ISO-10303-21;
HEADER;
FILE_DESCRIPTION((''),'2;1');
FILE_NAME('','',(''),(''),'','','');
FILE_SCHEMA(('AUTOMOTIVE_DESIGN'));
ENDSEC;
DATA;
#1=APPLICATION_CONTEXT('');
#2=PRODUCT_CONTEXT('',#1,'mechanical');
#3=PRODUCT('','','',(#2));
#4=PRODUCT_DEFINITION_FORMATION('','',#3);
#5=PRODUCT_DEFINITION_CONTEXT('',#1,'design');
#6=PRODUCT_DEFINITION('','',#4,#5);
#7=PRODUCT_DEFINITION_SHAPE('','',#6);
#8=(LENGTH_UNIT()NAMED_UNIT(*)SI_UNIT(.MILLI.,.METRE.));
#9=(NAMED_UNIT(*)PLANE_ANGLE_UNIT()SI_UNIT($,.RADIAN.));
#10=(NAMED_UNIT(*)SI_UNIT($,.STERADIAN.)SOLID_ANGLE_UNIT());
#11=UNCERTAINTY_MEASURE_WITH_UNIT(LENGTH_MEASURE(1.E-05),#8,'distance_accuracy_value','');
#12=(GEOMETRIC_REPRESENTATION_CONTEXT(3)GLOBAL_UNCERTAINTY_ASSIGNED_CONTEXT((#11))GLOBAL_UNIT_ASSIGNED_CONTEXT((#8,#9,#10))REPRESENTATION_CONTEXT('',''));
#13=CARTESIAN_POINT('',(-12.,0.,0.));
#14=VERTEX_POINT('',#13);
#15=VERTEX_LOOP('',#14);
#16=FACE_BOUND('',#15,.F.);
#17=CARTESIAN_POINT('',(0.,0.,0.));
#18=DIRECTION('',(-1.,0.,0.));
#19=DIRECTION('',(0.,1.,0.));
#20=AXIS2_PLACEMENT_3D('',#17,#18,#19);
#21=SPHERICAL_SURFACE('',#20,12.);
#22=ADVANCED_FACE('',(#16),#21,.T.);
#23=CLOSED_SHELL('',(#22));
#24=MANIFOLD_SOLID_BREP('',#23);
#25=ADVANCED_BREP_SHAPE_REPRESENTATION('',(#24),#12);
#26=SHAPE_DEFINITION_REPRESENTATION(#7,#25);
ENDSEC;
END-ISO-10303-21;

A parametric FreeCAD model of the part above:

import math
import FreeCAD as App
import Part
import Sketcher
from FreeCAD import Vector
Q = App.Units.Quantity

doc = App.newDocument("Part")
body = doc.addObject("PartDesign::Body", "Body")

# Sketch on XY plane
sketch1 = doc.addObject("Sketcher::SketchObject", "Sketch")
body.addObject(sketch1)
sketch1.AttachmentSupport = (doc.XY_Plane, [""])
sketch1.MapMode = "FlatFace"
sketch1.addGeometry([
    Part.LineSegment(Vector(-12, 0, 0), Vector(12, 0, 0)),
    Part.ArcOfCircle(Part.Circle(Vector(0, 0, 0), Vector(0, 0, 1), 12), math.radians(0), math.radians(180)),
], False)
sketch1.addConstraint([
    Sketcher.Constraint("Coincident", 0, 1, 1, 2),
    Sketcher.Constraint("Coincident", 1, 1, 0, 2),
    Sketcher.Constraint("Horizontal", 0),
    Sketcher.Constraint("Coincident", 1, 3, -1, 1),
    Sketcher.Constraint("PointOnObject", 0, 1, -1),
    Sketcher.Constraint("Radius", 1, Q("12 mm")),
])
revolution = doc.addObject("PartDesign::Revolution", "Revolution")
body.addObject(revolution)
revolution.Profile = sketch1
revolution.ReferenceAxis = (sketch1, ["H_Axis"])
revolution.Angle = 360

doc.recompute()
